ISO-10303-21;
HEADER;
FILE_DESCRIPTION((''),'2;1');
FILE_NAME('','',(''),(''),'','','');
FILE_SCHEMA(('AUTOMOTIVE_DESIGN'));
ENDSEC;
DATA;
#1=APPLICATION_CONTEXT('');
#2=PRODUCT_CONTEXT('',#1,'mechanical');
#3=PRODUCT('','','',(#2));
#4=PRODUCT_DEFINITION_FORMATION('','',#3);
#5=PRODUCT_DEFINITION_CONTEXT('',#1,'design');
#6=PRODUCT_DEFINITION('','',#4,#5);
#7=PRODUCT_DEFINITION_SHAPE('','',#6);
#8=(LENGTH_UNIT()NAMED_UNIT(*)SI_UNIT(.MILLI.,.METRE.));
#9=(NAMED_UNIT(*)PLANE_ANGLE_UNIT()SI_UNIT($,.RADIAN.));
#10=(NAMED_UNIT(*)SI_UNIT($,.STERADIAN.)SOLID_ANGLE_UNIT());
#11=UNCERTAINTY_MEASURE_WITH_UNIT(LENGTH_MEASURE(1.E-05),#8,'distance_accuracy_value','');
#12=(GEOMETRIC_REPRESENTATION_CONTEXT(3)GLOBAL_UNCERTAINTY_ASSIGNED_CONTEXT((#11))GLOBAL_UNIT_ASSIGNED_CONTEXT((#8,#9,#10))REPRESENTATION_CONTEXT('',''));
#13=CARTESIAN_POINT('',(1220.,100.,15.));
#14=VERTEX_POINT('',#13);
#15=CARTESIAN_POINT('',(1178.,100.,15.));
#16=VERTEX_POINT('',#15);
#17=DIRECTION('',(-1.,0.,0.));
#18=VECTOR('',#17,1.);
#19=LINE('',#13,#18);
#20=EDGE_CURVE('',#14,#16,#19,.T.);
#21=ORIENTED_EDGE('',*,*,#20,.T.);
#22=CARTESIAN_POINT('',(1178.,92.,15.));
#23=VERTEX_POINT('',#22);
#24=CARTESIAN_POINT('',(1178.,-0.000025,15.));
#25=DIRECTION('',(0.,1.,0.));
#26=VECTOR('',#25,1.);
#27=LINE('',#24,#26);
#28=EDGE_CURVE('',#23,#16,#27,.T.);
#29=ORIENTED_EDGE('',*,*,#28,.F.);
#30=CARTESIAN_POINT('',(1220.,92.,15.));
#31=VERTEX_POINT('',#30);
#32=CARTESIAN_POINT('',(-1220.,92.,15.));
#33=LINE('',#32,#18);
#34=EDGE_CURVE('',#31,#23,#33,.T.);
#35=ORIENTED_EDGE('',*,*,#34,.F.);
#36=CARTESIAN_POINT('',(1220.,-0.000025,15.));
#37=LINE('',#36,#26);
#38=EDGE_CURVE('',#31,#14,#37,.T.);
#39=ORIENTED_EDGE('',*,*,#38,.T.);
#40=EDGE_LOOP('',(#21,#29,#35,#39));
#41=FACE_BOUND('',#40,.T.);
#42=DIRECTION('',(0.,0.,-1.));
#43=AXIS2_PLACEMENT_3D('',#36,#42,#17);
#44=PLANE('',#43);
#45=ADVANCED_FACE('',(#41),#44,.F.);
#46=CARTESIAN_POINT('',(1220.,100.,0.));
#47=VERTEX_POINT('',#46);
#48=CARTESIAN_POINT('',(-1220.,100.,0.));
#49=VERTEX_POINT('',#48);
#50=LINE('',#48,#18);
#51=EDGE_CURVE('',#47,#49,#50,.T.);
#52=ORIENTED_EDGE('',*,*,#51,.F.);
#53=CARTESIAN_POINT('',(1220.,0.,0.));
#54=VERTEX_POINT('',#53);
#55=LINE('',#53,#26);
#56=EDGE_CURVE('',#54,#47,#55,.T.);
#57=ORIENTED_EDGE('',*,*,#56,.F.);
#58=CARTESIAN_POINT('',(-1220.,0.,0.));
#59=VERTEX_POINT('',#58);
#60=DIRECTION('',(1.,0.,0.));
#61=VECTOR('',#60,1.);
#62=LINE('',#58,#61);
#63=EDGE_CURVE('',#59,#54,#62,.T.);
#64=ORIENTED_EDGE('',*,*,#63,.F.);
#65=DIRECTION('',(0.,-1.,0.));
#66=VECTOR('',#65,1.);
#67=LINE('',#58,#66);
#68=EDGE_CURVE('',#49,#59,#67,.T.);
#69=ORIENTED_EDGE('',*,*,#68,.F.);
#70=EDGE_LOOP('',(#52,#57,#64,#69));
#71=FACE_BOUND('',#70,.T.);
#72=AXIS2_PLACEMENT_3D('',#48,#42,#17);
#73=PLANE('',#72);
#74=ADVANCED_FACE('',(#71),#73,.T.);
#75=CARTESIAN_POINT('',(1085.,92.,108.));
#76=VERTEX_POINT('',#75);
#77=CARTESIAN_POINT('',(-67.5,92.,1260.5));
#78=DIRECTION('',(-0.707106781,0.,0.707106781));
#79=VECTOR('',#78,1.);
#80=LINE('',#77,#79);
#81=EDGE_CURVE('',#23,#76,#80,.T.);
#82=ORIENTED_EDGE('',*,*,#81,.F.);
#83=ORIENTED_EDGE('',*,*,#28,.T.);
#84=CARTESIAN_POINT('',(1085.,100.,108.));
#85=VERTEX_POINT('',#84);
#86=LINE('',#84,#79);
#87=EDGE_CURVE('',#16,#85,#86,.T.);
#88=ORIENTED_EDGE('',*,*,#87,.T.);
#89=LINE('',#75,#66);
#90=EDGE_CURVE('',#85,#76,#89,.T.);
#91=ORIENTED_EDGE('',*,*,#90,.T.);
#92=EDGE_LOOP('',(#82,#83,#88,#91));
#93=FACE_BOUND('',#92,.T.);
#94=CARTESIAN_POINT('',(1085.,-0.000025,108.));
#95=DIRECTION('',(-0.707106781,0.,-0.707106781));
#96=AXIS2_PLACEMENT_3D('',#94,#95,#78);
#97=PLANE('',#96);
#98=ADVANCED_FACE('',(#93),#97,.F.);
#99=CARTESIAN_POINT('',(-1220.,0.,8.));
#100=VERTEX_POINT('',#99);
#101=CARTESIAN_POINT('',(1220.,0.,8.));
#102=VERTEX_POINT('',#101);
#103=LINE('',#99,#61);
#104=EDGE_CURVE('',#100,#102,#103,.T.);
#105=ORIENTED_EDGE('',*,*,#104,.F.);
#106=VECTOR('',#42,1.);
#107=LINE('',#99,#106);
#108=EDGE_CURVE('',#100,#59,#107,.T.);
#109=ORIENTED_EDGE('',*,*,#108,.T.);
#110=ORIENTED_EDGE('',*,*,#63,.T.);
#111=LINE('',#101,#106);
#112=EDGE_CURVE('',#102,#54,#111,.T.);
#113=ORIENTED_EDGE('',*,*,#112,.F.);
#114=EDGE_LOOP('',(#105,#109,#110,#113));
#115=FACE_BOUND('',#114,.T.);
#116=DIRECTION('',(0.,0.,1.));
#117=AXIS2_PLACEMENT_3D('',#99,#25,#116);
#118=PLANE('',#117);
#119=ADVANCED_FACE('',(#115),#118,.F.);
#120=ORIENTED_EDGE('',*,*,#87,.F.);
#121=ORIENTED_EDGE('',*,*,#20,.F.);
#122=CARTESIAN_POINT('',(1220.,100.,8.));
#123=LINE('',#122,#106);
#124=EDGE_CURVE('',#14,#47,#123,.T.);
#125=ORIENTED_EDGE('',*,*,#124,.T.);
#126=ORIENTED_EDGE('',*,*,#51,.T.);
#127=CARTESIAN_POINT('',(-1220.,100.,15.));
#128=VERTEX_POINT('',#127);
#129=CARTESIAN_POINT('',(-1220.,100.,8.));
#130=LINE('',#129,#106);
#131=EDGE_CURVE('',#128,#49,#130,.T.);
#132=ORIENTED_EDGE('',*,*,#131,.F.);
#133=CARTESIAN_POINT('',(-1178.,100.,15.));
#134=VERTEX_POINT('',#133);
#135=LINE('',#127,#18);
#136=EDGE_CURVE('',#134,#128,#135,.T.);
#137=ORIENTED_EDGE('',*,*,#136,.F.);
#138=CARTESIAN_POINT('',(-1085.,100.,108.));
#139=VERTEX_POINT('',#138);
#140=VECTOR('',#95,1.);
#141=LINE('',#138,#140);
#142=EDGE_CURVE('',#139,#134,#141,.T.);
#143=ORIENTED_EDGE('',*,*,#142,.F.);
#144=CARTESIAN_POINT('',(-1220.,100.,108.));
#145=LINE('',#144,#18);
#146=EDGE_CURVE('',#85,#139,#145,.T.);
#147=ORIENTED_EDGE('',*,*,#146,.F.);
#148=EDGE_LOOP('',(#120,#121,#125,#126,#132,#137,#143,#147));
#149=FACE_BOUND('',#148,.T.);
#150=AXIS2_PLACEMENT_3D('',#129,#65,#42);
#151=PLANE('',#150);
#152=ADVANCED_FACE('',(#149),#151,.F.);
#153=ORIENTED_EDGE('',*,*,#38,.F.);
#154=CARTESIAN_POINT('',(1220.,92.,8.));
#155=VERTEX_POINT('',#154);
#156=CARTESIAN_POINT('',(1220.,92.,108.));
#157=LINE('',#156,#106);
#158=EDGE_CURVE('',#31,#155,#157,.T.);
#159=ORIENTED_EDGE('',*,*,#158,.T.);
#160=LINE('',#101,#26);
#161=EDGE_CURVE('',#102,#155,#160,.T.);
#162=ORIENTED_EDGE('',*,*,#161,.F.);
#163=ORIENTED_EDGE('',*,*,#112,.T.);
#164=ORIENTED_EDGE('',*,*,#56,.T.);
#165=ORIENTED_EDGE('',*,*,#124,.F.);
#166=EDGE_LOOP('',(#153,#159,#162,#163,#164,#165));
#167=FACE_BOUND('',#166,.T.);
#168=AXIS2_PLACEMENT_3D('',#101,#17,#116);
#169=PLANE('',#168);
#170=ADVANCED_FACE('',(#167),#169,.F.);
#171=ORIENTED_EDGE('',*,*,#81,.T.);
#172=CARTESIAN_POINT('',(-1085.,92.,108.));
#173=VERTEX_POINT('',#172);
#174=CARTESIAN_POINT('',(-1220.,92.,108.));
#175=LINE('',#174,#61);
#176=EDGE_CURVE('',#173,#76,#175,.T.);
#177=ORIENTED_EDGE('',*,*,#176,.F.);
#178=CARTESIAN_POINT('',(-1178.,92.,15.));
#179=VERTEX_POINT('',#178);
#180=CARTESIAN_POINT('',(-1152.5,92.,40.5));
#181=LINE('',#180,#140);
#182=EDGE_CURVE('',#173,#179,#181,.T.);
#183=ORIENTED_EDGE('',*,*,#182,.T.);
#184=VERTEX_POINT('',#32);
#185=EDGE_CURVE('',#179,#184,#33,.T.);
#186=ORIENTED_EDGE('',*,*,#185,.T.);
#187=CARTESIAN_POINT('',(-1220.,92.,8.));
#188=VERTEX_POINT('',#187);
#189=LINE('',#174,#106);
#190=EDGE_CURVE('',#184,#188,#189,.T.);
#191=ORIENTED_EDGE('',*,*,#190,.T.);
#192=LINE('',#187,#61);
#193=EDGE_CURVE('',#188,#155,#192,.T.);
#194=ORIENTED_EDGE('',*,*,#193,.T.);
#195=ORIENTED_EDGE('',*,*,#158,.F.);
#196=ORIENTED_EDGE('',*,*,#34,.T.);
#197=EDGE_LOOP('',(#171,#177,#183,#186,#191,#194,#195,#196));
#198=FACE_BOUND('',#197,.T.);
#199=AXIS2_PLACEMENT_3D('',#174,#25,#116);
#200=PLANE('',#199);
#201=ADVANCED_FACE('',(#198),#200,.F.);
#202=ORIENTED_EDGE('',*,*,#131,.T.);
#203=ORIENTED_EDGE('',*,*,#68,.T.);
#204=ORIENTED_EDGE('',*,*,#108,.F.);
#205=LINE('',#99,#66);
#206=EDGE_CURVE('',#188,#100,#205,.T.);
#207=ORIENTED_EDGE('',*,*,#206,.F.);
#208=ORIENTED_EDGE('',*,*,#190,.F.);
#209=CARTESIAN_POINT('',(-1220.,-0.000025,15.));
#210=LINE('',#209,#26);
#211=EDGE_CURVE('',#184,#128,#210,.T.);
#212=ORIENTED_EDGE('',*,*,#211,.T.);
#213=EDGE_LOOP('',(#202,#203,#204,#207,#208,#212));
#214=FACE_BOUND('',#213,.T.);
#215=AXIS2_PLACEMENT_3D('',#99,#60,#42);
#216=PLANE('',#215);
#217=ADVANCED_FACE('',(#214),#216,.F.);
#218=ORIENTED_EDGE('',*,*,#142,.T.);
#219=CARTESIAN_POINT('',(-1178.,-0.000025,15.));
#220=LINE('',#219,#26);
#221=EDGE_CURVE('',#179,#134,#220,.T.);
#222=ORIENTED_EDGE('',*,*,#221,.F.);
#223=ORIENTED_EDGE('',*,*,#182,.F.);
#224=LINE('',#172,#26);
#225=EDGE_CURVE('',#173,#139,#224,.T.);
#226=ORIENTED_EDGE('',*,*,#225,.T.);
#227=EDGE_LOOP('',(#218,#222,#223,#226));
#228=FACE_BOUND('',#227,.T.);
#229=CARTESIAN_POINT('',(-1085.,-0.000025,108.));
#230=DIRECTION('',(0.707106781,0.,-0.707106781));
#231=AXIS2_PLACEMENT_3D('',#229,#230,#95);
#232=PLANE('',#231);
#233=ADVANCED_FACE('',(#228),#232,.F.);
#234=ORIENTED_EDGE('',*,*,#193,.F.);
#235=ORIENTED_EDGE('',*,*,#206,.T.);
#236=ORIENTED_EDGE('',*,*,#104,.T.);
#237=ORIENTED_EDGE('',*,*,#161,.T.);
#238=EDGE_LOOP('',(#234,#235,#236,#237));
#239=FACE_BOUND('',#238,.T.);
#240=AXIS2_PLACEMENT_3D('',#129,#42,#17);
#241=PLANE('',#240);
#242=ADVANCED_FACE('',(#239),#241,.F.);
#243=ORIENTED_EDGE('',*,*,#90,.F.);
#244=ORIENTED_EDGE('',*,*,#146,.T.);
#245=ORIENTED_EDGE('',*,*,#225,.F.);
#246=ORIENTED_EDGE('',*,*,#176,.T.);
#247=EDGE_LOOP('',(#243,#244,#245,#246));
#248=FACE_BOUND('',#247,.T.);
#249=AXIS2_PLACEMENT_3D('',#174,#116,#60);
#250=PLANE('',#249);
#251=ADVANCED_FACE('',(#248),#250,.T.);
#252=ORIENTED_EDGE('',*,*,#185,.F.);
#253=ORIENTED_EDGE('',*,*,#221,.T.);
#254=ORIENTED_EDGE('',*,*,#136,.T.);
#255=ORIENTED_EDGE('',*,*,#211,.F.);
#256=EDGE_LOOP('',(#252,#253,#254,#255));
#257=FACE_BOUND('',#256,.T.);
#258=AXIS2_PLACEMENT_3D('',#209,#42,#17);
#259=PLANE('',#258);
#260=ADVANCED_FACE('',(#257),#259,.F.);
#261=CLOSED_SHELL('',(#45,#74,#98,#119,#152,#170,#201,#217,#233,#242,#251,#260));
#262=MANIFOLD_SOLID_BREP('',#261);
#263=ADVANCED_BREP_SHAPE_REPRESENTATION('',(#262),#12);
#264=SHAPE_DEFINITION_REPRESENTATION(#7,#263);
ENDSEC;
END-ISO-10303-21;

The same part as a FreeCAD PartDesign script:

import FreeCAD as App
import Part
import Sketcher

V = App.Vector


def add_polygon(sketch, points):
    """Adds a closed chain of lines whose ends are joined by coincident constraints."""
    first, n = sketch.GeometryCount, len(points)
    for a, b in zip(points, points[1:] + points[:1]):
        sketch.addGeometry(Part.LineSegment(App.Vector(*a, 0), App.Vector(*b, 0)), False)
    for i in range(n):
        sketch.addConstraint(Sketcher.Constraint("Coincident", first + i, 2, first + (i + 1) % n, 1))

doc = App.newDocument("Part")
body = doc.addObject("PartDesign::Body", "Body")

# Sketch on XY plane
sketch1 = doc.addObject("Sketcher::SketchObject", "Sketch")
body.addObject(sketch1)
sketch1.AttachmentSupport = (doc.XY_Plane, [""])
sketch1.MapMode = "FlatFace"
add_polygon(sketch1, [(-1220, 100), (-1220, 0), (1220, 0), (1220, 100)])  # lines 0-3
sketch1.addConstraint([
    Sketcher.Constraint("Vertical", 0),
    Sketcher.Constraint("Horizontal", 1),
    Sketcher.Constraint("Vertical", 2),
    Sketcher.Constraint("Horizontal", 3),
    Sketcher.Constraint("Symmetric", 0, 2, 1, 2, -1, 1),
    Sketcher.Constraint("DistanceX", 1, 1, 1, 2, 2440.0),
    Sketcher.Constraint("DistanceY", 0, 2, 0, 1, 100.0),
])
pad1 = doc.addObject("PartDesign::Pad", "Pad")
body.addObject(pad1)
pad1.Profile = sketch1
pad1.Length = 8

# Sketch on XY plane
sketch2 = doc.addObject("Sketcher::SketchObject", "Sketch001")
body.addObject(sketch2)
sketch2.AttachmentSupport = (doc.XY_Plane, [""])
sketch2.MapMode = "FlatFace"
sketch2.AttachmentOffset = App.Placement(V(0, 0, 8), App.Rotation())
add_polygon(sketch2, [(-1220, 100), (-1220, 92), (1220, 92), (1220, 100)])  # lines 0-3
sketch2.addConstraint([
    Sketcher.Constraint("Vertical", 0),
    Sketcher.Constraint("Horizontal", 1),
    Sketcher.Constraint("Vertical", 2),
    Sketcher.Constraint("Horizontal", 3),
    Sketcher.Constraint("DistanceX", 1, 1, 1, 2, 2440.0),
    Sketcher.Constraint("DistanceY", 0, 2, 0, 1, 8.0),
    Sketcher.Constraint("DistanceX", 0, 2, -1, 1, 1220.0),
    Sketcher.Constraint("DistanceY", -1, 1, 0, 2, 92.0),
])
pad2 = doc.addObject("PartDesign::Pad", "Pad001")
body.addObject(pad2)
pad2.Profile = sketch2
pad2.Length = 100

# Sketch on XZ plane
sketch3 = doc.addObject("Sketcher::SketchObject", "Sketch002")
body.addObject(sketch3)
sketch3.AttachmentSupport = (doc.XZ_Plane, [""])
sketch3.MapMode = "FlatFace"
sketch3.AttachmentOffset = App.Placement(V(0, 0, -100), App.Rotation())
add_polygon(sketch3, [(1178, 15), (1085, 108), (1220, 108), (1220, 15)])  # lines 0-3
add_polygon(sketch3, [(-1178, 15), (-1220, 15), (-1220, 108), (-1085, 108)])  # lines 4-7
sketch3.addConstraint([
    Sketcher.Constraint("Horizontal", 1),
    Sketcher.Constraint("Vertical", 2),
    Sketcher.Constraint("Horizontal", 3),
    Sketcher.Constraint("Horizontal", 4),
    Sketcher.Constraint("Vertical", 5),
    Sketcher.Constraint("Horizontal", 6),
    Sketcher.Constraint("Symmetric", 2, 2, 4, 2, -2),
    Sketcher.Constraint("Symmetric", 0, 2, 6, 2, -2),
    Sketcher.Constraint("Perpendicular", 0, 7),
    Sketcher.Constraint("Equal", 3, 4),
    Sketcher.Constraint("DistanceX", 1, 1, 1, 2, 135.0),
    Sketcher.Constraint("DistanceX", 3, 2, 3, 1, 42.0),
    Sketcher.Constraint("DistanceX", -1, 1, 0, 2, 1085.0),
    Sketcher.Constraint("DistanceY", -1, 1, 0, 2, 108.0),
])
pocket1 = doc.addObject("PartDesign::Pocket", "Pocket")
body.addObject(pocket1)
pocket1.Profile = sketch3
pocket1.Type = "ThroughAll"
pocket1.Reversed = True

doc.recompute()
